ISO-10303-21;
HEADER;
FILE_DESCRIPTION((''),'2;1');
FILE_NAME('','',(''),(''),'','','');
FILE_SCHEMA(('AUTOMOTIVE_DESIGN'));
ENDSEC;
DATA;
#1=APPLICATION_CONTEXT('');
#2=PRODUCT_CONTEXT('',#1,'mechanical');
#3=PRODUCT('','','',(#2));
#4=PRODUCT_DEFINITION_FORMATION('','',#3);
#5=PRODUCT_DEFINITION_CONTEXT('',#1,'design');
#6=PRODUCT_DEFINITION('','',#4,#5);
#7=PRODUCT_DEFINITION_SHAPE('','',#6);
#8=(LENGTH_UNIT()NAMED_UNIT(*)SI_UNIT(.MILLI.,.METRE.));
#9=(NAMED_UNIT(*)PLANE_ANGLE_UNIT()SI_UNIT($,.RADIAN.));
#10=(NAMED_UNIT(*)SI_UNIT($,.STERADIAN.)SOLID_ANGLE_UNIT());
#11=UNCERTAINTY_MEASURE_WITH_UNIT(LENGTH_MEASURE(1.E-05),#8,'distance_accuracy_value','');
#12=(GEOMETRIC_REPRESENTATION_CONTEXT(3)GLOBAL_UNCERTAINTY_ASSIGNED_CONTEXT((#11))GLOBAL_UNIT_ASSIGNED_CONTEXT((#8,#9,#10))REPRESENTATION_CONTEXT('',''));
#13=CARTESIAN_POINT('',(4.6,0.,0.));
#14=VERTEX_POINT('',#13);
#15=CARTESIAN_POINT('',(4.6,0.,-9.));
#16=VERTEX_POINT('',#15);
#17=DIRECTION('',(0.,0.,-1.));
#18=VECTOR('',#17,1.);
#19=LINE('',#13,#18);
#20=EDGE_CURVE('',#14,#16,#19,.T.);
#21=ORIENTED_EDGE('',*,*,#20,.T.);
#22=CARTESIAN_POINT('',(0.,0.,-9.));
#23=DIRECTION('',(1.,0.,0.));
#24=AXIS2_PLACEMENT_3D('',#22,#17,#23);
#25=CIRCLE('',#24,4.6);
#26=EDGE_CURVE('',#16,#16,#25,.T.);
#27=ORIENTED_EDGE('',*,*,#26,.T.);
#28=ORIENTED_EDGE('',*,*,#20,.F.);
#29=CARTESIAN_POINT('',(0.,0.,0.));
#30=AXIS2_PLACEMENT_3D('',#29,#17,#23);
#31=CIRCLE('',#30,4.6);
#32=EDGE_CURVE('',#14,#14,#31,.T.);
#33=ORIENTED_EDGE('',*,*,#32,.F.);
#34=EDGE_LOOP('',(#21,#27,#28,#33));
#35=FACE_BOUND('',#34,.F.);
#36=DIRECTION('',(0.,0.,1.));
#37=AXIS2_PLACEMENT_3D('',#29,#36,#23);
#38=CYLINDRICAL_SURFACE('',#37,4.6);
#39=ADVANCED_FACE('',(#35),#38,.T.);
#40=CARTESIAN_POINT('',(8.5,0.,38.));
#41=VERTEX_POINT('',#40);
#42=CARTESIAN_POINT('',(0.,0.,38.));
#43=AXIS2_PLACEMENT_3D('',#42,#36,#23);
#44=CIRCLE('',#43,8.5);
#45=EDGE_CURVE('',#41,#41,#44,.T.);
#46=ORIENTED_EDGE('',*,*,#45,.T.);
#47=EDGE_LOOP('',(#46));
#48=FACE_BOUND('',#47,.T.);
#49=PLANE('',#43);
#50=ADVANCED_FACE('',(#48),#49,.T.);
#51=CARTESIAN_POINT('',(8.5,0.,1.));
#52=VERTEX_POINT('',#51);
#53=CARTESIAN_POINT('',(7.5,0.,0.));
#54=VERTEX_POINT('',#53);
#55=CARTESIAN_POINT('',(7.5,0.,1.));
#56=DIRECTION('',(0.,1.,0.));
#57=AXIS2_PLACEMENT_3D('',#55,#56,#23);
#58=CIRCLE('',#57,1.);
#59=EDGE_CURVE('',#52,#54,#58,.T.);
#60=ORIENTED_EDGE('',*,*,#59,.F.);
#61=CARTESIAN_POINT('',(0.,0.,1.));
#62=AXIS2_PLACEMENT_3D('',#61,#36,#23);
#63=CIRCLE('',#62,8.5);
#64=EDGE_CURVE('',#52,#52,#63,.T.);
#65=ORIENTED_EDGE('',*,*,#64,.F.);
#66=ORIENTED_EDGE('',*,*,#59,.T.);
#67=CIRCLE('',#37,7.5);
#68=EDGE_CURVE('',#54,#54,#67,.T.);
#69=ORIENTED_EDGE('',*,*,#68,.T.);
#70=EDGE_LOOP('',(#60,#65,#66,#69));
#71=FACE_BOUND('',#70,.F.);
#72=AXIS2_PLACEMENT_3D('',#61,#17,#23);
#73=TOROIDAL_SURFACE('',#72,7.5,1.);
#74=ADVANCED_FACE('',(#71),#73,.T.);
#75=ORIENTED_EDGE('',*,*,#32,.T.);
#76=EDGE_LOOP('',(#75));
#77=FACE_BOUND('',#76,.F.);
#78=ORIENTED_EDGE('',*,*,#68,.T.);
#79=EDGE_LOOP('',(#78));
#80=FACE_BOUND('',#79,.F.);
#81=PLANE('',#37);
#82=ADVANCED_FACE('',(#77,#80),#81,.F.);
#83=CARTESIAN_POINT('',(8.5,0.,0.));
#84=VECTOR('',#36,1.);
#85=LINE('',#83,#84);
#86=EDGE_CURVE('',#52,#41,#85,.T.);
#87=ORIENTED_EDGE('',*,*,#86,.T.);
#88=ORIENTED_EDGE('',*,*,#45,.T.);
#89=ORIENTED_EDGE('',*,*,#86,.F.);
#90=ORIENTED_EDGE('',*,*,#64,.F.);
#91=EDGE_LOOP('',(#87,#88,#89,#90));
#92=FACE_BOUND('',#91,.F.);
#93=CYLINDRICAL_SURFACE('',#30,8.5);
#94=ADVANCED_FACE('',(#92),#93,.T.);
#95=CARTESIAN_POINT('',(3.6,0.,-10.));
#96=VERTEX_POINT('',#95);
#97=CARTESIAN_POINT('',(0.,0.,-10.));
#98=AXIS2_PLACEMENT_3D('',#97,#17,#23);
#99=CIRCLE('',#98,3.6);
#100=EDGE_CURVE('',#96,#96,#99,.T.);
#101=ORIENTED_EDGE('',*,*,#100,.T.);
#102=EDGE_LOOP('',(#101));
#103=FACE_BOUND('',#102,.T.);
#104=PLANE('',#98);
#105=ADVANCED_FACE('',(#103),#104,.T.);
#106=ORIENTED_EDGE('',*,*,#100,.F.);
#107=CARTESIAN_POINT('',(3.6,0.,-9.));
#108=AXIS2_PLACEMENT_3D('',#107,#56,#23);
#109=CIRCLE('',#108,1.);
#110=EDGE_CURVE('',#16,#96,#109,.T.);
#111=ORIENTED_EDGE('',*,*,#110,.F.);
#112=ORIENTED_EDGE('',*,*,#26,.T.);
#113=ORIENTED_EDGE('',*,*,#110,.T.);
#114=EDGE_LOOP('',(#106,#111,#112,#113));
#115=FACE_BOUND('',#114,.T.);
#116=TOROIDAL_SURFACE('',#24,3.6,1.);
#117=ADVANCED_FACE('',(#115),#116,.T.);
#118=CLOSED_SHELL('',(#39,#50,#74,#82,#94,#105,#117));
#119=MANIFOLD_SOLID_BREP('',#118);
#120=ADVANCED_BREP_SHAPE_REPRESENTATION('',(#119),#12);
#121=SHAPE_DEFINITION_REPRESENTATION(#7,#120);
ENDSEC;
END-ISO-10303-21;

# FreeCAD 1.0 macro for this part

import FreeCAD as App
import Part
import Sketcher
from FreeCAD import Vector
Q = App.Units.Quantity


def edges_at(feature, points):
    """Names of the edges that pass closest to the given points."""
    edges = feature.Shape.Edges
    near = lambda p: min(range(len(edges)), key=lambda i: edges[i].distToShape(Part.Vertex(*p))[0])
    return sorted({f"Edge{near(p) + 1}" for p in points})

doc = App.newDocument("Part")
body = doc.addObject("PartDesign::Body", "Body")

# Sketch on XY plane
sketch1 = body.newObject("Sketcher::SketchObject", "Sketch")
sketch1.AttachmentSupport = (doc.getObject("XY_Plane"), [""])
sketch1.MapMode = "FlatFace"
sketch1.addGeometry(Part.Circle(Vector(0, 0, 0), Vector(0, 0, 1), 8.5), False)
sketch1.addConstraint([
    Sketcher.Constraint("Coincident", 0, 3, -1, 1),
    Sketcher.Constraint("Diameter", 0, Q("17 mm")),
])
pad1 = body.newObject("PartDesign::Pad", "Pad")
pad1.Profile = sketch1
pad1.Length = 38

# Sketch on XY plane
sketch2 = body.newObject("Sketcher::SketchObject", "Sketch001")
sketch2.AttachmentSupport = (doc.getObject("XY_Plane"), [""])
sketch2.MapMode = "FlatFace"
sketch2.addGeometry(Part.Circle(Vector(0, 0, 0), Vector(0, 0, 1), 4.6), False)
sketch2.addConstraint([
    Sketcher.Constraint("Coincident", 0, 3, -1, 1),
    Sketcher.Constraint("Diameter", 0, Q("9.2 mm")),
])
pad2 = body.newObject("PartDesign::Pad", "Pad001")
pad2.Profile = sketch2
pad2.Length = 10
pad2.Reversed = True
doc.recompute()

fillet = body.newObject("PartDesign::Fillet", "Fillet")
fillet.Base = (pad2, edges_at(pad2, [(-4.6, 0, -10), (-8.5, 0, 0)]))
fillet.Radius = 1

doc.recompute()
